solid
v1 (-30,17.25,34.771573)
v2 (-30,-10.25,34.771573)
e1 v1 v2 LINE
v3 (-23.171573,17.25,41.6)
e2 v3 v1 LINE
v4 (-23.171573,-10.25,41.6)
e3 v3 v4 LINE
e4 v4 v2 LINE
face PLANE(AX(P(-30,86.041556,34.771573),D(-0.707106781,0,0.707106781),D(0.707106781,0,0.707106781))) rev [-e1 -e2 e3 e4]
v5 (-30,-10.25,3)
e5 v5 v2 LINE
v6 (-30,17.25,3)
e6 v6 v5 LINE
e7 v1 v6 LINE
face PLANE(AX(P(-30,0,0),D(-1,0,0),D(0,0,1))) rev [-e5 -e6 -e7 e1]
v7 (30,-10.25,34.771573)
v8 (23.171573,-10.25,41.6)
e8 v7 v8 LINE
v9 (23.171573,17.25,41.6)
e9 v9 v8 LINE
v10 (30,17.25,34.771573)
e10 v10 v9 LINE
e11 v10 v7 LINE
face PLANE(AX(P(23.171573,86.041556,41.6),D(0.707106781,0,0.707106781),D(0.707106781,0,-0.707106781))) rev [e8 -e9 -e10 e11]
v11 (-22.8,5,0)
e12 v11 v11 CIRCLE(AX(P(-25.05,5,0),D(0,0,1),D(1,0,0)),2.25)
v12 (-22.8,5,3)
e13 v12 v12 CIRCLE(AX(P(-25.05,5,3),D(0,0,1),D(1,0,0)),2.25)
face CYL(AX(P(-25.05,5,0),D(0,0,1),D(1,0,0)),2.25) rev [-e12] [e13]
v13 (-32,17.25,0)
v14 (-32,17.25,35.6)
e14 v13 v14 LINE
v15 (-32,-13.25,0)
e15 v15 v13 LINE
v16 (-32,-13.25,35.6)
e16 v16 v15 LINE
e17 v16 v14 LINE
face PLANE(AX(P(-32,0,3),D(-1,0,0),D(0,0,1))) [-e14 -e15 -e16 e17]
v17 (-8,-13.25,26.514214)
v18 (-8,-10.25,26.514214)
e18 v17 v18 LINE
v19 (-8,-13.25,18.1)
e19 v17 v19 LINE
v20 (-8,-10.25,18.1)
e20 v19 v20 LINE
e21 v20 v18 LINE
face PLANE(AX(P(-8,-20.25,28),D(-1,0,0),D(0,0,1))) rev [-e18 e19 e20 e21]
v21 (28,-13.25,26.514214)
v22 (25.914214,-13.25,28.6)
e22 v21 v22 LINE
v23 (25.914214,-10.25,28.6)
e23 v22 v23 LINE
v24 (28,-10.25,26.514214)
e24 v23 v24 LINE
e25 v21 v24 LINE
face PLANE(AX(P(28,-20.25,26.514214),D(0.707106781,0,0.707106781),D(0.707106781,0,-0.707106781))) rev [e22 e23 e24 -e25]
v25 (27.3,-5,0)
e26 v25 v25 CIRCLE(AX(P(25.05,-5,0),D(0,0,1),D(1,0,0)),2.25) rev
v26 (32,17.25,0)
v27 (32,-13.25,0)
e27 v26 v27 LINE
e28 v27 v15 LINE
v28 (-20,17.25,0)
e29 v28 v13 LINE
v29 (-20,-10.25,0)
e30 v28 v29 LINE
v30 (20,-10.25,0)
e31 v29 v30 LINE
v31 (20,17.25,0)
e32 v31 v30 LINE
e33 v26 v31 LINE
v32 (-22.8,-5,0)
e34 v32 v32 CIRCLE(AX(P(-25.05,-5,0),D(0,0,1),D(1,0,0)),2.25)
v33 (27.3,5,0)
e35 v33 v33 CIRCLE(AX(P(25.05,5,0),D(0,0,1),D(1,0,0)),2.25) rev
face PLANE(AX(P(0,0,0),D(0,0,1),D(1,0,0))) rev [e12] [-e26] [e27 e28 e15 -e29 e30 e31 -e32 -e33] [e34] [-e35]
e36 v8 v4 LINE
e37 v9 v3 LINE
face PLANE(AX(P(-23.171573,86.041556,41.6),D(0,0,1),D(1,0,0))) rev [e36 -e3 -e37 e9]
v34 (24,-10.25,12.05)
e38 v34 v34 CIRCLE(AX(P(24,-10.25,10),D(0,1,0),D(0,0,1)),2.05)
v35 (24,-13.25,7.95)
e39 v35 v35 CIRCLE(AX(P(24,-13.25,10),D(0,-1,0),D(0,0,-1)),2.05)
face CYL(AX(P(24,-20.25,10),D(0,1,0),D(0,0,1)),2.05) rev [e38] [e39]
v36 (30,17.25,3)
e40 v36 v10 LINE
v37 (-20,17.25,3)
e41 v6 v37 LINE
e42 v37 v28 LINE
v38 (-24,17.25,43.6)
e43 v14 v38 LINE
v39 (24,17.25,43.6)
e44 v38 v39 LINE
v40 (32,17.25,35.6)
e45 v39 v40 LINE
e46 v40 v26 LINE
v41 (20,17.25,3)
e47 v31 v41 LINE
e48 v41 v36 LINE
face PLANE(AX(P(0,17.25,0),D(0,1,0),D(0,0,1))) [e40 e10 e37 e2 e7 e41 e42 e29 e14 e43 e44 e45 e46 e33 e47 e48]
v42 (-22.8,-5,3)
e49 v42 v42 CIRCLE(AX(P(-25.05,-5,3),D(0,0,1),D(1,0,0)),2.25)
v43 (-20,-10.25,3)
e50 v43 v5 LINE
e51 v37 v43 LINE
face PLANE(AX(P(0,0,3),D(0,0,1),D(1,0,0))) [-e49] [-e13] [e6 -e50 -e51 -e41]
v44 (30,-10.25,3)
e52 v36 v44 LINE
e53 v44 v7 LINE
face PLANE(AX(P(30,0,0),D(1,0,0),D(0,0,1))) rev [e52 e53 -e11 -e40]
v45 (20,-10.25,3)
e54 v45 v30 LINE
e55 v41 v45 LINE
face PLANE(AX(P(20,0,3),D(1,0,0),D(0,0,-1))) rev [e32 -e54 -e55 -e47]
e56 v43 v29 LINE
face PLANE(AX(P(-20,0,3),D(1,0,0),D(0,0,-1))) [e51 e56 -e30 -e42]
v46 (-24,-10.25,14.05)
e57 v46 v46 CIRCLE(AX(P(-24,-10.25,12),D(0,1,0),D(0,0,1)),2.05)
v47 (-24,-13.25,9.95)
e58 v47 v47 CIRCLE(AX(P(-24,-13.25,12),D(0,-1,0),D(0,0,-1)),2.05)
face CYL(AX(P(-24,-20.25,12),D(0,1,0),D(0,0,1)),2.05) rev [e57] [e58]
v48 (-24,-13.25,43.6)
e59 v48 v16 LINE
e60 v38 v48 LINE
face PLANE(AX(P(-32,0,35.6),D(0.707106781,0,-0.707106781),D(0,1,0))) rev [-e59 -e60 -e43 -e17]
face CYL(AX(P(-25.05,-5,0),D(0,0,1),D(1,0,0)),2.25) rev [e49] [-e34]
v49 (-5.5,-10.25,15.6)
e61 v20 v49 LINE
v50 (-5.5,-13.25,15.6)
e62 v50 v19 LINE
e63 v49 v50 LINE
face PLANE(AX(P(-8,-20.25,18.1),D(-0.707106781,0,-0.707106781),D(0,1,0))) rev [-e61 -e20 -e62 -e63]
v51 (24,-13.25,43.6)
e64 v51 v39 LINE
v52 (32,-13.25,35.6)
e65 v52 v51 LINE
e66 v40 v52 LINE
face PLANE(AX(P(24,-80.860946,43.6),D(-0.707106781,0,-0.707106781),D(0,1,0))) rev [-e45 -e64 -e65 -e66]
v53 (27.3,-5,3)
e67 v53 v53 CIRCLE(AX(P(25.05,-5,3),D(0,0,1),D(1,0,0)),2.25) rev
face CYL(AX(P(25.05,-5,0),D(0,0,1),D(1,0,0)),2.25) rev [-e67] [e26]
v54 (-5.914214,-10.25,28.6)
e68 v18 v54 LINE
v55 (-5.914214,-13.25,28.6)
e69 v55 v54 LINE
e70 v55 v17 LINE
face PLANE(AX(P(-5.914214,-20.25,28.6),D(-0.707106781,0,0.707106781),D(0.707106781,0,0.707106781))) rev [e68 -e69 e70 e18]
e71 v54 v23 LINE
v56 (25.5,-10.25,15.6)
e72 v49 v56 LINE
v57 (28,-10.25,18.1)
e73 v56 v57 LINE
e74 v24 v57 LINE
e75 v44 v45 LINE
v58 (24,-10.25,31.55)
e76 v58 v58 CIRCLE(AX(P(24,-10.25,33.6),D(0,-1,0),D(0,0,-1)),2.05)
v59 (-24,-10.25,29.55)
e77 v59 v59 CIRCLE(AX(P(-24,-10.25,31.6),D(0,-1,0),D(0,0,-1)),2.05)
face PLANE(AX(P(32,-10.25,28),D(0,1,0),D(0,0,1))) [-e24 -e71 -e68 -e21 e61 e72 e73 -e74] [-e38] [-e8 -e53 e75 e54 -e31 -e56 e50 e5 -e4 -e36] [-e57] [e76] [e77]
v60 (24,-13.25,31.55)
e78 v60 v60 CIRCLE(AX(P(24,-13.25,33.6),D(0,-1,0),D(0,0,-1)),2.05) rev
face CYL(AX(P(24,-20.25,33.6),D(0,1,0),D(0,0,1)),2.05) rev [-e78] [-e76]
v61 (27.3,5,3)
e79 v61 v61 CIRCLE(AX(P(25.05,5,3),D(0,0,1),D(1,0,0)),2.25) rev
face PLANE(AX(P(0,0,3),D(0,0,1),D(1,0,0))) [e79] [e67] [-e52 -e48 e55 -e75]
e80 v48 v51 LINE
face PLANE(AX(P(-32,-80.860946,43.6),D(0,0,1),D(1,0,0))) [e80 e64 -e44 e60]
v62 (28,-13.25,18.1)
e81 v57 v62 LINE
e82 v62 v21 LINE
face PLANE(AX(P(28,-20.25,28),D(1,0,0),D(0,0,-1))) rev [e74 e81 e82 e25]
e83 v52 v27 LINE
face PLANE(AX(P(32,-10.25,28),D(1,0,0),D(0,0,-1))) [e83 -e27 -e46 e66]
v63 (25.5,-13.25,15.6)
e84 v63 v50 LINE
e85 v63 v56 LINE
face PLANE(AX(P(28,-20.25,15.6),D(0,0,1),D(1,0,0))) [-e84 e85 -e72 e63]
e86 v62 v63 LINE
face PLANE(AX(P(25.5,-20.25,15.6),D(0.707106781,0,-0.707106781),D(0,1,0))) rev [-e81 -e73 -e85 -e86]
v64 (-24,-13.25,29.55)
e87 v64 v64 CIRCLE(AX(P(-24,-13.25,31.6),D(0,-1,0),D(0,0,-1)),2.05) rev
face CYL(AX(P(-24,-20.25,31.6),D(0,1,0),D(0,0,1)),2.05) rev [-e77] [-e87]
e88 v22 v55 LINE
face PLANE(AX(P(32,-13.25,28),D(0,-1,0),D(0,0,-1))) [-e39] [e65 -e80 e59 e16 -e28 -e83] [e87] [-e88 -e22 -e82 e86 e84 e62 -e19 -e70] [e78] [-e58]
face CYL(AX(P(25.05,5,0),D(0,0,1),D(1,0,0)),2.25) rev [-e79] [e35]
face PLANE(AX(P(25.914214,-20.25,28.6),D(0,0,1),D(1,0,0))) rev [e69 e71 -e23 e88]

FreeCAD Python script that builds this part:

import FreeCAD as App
import Part
import Sketcher
from FreeCAD import Vector


def edges_at(feature, points):
    """Names of the edges that pass closest to the given points."""
    edges = feature.Shape.Edges
    near = lambda p: min(range(len(edges)), key=lambda i: edges[i].distToShape(Part.Vertex(*p))[0])
    return sorted({f"Edge{near(p) + 1}" for p in points})

doc = App.newDocument("Part")
body = doc.addObject("PartDesign::Body", "Body")

# Sketch on XY plane
sketch1 = body.newObject("Sketcher::SketchObject", "Sketch")
sketch1.AttachmentSupport = (doc.getObject("XY_Plane"), [""])
sketch1.MapMode = "FlatFace"
sketch1.addGeometry([
    Part.LineSegment(Vector(20, 10, 0), Vector(20, -10, 0)),
    Part.LineSegment(Vector(20, -10, 0), Vector(32, -10, 0)),
    Part.LineSegment(Vector(32, -10, 0), Vector(32, 10, 0)),
    Part.LineSegment(Vector(32, 10, 0), Vector(20, 10, 0)),
], False)
sketch1.addConstraint([
    Sketcher.Constraint("Coincident", 0, 2, 1, 1),
    Sketcher.Constraint("Coincident", 1, 2, 2, 1),
    Sketcher.Constraint("Coincident", 2, 2, 3, 1),
    Sketcher.Constraint("Coincident", 3, 2, 0, 1),
    Sketcher.Constraint("Vertical", 0),
    Sketcher.Constraint("Horizontal", 1),
    Sketcher.Constraint("Vertical", 2),
    Sketcher.Constraint("Horizontal", 3),
    Sketcher.Constraint("DistanceX", 1, 1, 1, 2, 12.0),
    Sketcher.Constraint("DistanceY", 0, 2, 0, 1, 20.5),
    Sketcher.Constraint("DistanceX", -1, 1, 0, 2, 20.0),
    Sketcher.Constraint("DistanceY", 0, 2, -1, 1, 10.25),
])
pad1 = body.newObject("PartDesign::Pad", "Pad")
pad1.Profile = sketch1
pad1.Length = 3
body2 = doc.addObject("PartDesign::Body", "Body001")

# Sketch on XY plane
sketch2 = body2.newObject("Sketcher::SketchObject", "Sketch001")
sketch2.AttachmentSupport = (doc.getObject("XY_Plane001"), [""])
sketch2.MapMode = "FlatFace"
sketch2.addGeometry([
    Part.LineSegment(Vector(-32, 10, 0), Vector(-32, -10, 0)),
    Part.LineSegment(Vector(-32, -10, 0), Vector(-20, -10, 0)),
    Part.LineSegment(Vector(-20, -10, 0), Vector(-20, 10, 0)),
    Part.LineSegment(Vector(-20, 10, 0), Vector(-32, 10, 0)),
], False)
sketch2.addConstraint([
    Sketcher.Constraint("Coincident", 0, 2, 1, 1),
    Sketcher.Constraint("Coincident", 1, 2, 2, 1),
    Sketcher.Constraint("Coincident", 2, 2, 3, 1),
    Sketcher.Constraint("Coincident", 3, 2, 0, 1),
    Sketcher.Constraint("Vertical", 0),
    Sketcher.Constraint("Horizontal", 1),
    Sketcher.Constraint("Vertical", 2),
    Sketcher.Constraint("Horizontal", 3),
    Sketcher.Constraint("DistanceX", 1, 1, 1, 2, 12.0),
    Sketcher.Constraint("DistanceY", 0, 2, 0, 1, 20.5),
    Sketcher.Constraint("DistanceX", 0, 2, -1, 1, 32.0),
    Sketcher.Constraint("DistanceY", 0, 2, -1, 1, 10.25),
])
pad2 = body2.newObject("PartDesign::Pad", "Pad001")
pad2.Profile = sketch2
pad2.Length = 3
body3 = doc.addObject("PartDesign::Body", "Body002")
body3.AllowCompound = True

# Sketch on XY plane
sketch3 = body3.newObject("Sketcher::SketchObject", "Sketch002")
sketch3.AttachmentSupport = (doc.getObject("XY_Plane002"), [""])
sketch3.MapMode = "FlatFace"
sketch3.AttachmentOffset = App.Placement(Vector(0, 0, 3), App.Rotation())
sketch3.addGeometry([
    Part.Circle(Vector(-25.1, 5, 0), Vector(0, 0, 1), 2.2),
    Part.Circle(Vector(-25.1, -5, 0), Vector(0, 0, 1), 2.2),
    Part.Circle(Vector(25.1, -5, 0), Vector(0, 0, 1), 2.2),
    Part.Circle(Vector(25.1, 5, 0), Vector(0, 0, 1), 2.2),
], False)
sketch3.addConstraint([
    Sketcher.Constraint("Equal", 0, 1),
    Sketcher.Constraint("Equal", 1, 2),
    Sketcher.Constraint("Equal", 2, 3),
    Sketcher.Constraint("Symmetric", 0, 3, 2, 3, -1, 1),
    Sketcher.Constraint("Symmetric", 1, 3, 3, 3, -1, 1),
    Sketcher.Constraint("Symmetric", 1, 3, 2, 3, -2),
    Sketcher.Constraint("Diameter", 0, 4.5),
    Sketcher.Constraint("DistanceY", -1, 1, 0, 3, 5.0),
    Sketcher.Constraint("DistanceX", 1, 3, 2, 3, 50.1),
])
pad3 = body3.newObject("PartDesign::Pad", "Pad002")
pad3.Profile = sketch3
pad3.Type = "TwoLengths"
pad3.Length = 34.735182
pad3.Length2 = 3
pad3.Reversed = True
doc.recompute()

body4 = doc.addObject("PartDesign::Body", "Body003")
body4.BaseFeature = body3
boolean = body.newObject("PartDesign::Boolean", "Boolean")
boolean.Type = "Cut"
boolean.addObjects([body4])
doc.recompute()

boolean2 = body2.newObject("PartDesign::Boolean", "Boolean001")
boolean2.Type = "Cut"
boolean2.addObjects([body3])
body.AllowCompound = True
doc.recompute()

boolean3 = body.newObject("PartDesign::Boolean", "Boolean002")
boolean3.Type = "Fuse"
boolean3.addObjects([body2])

# Sketch on XY plane
sketch4 = body.newObject("Sketcher::SketchObject", "Sketch003")
sketch4.AttachmentSupport = (doc.getObject("XY_Plane"), [""])
sketch4.MapMode = "FlatFace"
sketch4.addGeometry([
    Part.LineSegment(Vector(32, -10.2, 0), Vector(32, -13.2, 0)),
    Part.LineSegment(Vector(32, -13.2, 0), Vector(-32, -13.2, 0)),
    Part.LineSegment(Vector(-32, -13.2, 0), Vector(-32, -10.2, 0)),
    Part.LineSegment(Vector(-32, -10.2, 0), Vector(32, -10.2, 0)),
], False)
sketch4.addConstraint([
    Sketcher.Constraint("Coincident", 0, 2, 1, 1),
    Sketcher.Constraint("Coincident", 1, 2, 2, 1),
    Sketcher.Constraint("Coincident", 2, 2, 3, 1),
    Sketcher.Constraint("Coincident", 3, 2, 0, 1),
    Sketcher.Constraint("Vertical", 0),
    Sketcher.Constraint("Horizontal", 1),
    Sketcher.Constraint("Vertical", 2),
    Sketcher.Constraint("Horizontal", 3),
    Sketcher.Constraint("DistanceX", 1, 2, 1, 1, 64.0),
    Sketcher.Constraint("DistanceY", 0, 2, 0, 1, 3.0),
    Sketcher.Constraint("DistanceX", -1, 1, 0, 2, 32.0),
    Sketcher.Constraint("DistanceY", 0, 2, -1, 1, 13.25),
])
pad4 = body.newObject("PartDesign::Pad", "Pad003")
pad4.Profile = sketch4
pad4.Length = 28

# Sketch on YZ plane
sketch5 = body.newObject("Sketcher::SketchObject", "Sketch004")
sketch5.AttachmentSupport = (doc.getObject("YZ_Plane"), [""])
sketch5.MapMode = "FlatFace"
sketch5.AttachmentOffset = App.Placement(Vector(0, 0, -32), App.Rotation())
sketch5.addGeometry([
    Part.LineSegment(Vector(-10, 28, 0), Vector(10, 3, 0)),
    Part.LineSegment(Vector(10, 3, 0), Vector(-10, 3, 0)),
    Part.LineSegment(Vector(-10, 3, 0), Vector(-10, 28, 0)),
], False)
sketch5.addConstraint([
    Sketcher.Constraint("Coincident", 0, 2, 1, 1),
    Sketcher.Constraint("Coincident", 1, 2, 2, 1),
    Sketcher.Constraint("Coincident", 2, 2, 0, 1),
    Sketcher.Constraint("Horizontal", 1),
    Sketcher.Constraint("Vertical", 2),
    Sketcher.Constraint("DistanceY", 2, 1, 2, 2, 25.0),
    Sketcher.Constraint("DistanceX", 1, 2, 1, 1, 20.5),
    Sketcher.Constraint("DistanceY", -1, 1, 0, 2, 3.0),
    Sketcher.Constraint("DistanceX", -1, 1, 0, 2, 10.25),
])
pad5 = body.newObject("PartDesign::Pad", "Pad004")
pad5.Profile = sketch5
pad5.Length = 2
doc.recompute()

mirrored = body.newObject("PartDesign::Mirrored", "Mirrored")
mirrored.Originals = [pad5]
mirrored.MirrorPlane = (doc.getObject("YZ_Plane"), [""])
body.Tip = mirrored

# Sketch on XZ plane
sketch6 = body.newObject("Sketcher::SketchObject", "Sketch005")
sketch6.AttachmentSupport = (doc.getObject("XZ_Plane"), [""])
sketch6.MapMode = "FlatFace"
sketch6.AttachmentOffset = App.Placement(Vector(0, 0, 10.25), App.Rotation())
sketch6.addGeometry([
    Part.LineSegment(Vector(-8, 16, 0), Vector(-8, 28, 0)),
    Part.LineSegment(Vector(-8, 28, 0), Vector(28, 28, 0)),
    Part.LineSegment(Vector(28, 28, 0), Vector(28, 16, 0)),
    Part.LineSegment(Vector(28, 16, 0), Vector(-8, 16, 0)),
], False)
sketch6.addConstraint([
    Sketcher.Constraint("Coincident", 0, 2, 1, 1),
    Sketcher.Constraint("Coincident", 1, 2, 2, 1),
    Sketcher.Constraint("Coincident", 2, 2, 3, 1),
    Sketcher.Constraint("Coincident", 3, 2, 0, 1),
    Sketcher.Constraint("Vertical", 0),
    Sketcher.Constraint("Horizontal", 1),
    Sketcher.Constraint("Vertical", 2),
    Sketcher.Constraint("Horizontal", 3),
    Sketcher.Constraint("DistanceX", 1, 1, 1, 2, 36.0),
    Sketcher.Constraint("DistanceY", 0, 1, 0, 2, 12.0),
    Sketcher.Constraint("DistanceX", 0, 2, -1, 1, 8.0),
    Sketcher.Constraint("DistanceY", -1, 1, 0, 2, 28.0),
])
pocket1 = body.newObject("PartDesign::Pocket", "Pocket")
pocket1.Profile = sketch6
pocket1.Length = 10
pocket1.Reversed = True

# Sketch on XZ plane
sketch7 = body.newObject("Sketcher::SketchObject", "Sketch006")
sketch7.AttachmentSupport = (doc.getObject("XZ_Plane"), [""])
sketch7.MapMode = "FlatFace"
sketch7.AttachmentOffset = App.Placement(Vector(0, 0, 10.25), App.Rotation())
sketch7.addGeometry([
    Part.Circle(Vector(-24, 12, 0), Vector(0, 0, 1), 2),
    Part.Circle(Vector(24, 10, 0), Vector(0, 0, 1), 2),
], False)
sketch7.addConstraint([
    Sketcher.Constraint("Equal", 0, 1),
    Sketcher.Constraint("Diameter", 0, 4.1),
    Sketcher.Constraint("DistanceX", 0, 3, -1, 1, 24.0),
    Sketcher.Constraint("DistanceY", -1, 1, 0, 3, 12.0),
    Sketcher.Constraint("DistanceX", -1, 1, 1, 3, 24.0),
    Sketcher.Constraint("DistanceY", -1, 1, 1, 3, 10.0),
])
pocket2 = body.newObject("PartDesign::Pocket", "Pocket001")
pocket2.Profile = sketch7
pocket2.Length = 10
pocket2.Reversed = True

# Sketch on XZ plane
sketch8 = body.newObject("Sketcher::SketchObject", "Sketch007")
sketch8.AttachmentSupport = (doc.getObject("XZ_Plane"), [""])
sketch8.MapMode = "FlatFace"
sketch8.AttachmentOffset = App.Placement(Vector(0, 0, 10.25), App.Rotation())
sketch8.addGeometry([
    Part.LineSegment(Vector(-32, 22, 0), Vector(-32, 28, 0)),
    Part.LineSegment(Vector(-32, 28, 0), Vector(32, 28, 0)),
    Part.LineSegment(Vector(32, 28, 0), Vector(32, 22, 0)),
    Part.LineSegment(Vector(32, 22, 0), Vector(-32, 22, 0)),
], False)
sketch8.addConstraint([
    Sketcher.Constraint("Coincident", 0, 2, 1, 1),
    Sketcher.Constraint("Coincident", 1, 2, 2, 1),
    Sketcher.Constraint("Coincident", 2, 2, 3, 1),
    Sketcher.Constraint("Coincident", 3, 2, 0, 1),
    Sketcher.Constraint("Vertical", 0),
    Sketcher.Constraint("Horizontal", 1),
    Sketcher.Constraint("Vertical", 2),
    Sketcher.Constraint("Horizontal", 3),
    Sketcher.Constraint("DistanceX", 1, 1, 1, 2, 64.0),
    Sketcher.Constraint("DistanceY", 0, 1, 0, 2, 6.2),
    Sketcher.Constraint("DistanceX", 0, 2, -1, 1, 32.0),
    Sketcher.Constraint("DistanceY", -1, 1, 0, 2, 28.0),
])
pocket3 = body.newObject("PartDesign::Pocket", "Pocket002")
pocket3.Profile = sketch8
pocket3.Type = "ThroughAll"
pocket3.Midplane = True

# Sketch on XZ plane
sketch9 = body.newObject("Sketcher::SketchObject", "Sketch008")
sketch9.AttachmentSupport = (doc.getObject("XZ_Plane"), [""])
sketch9.MapMode = "FlatFace"
sketch9.AttachmentOffset = App.Placement(Vector(0, 0, 10.25), App.Rotation())
sketch9.addGeometry([
    Part.LineSegment(Vector(-32, 22, 0), Vector(-32, 44, 0)),
    Part.LineSegment(Vector(-32, 44, 0), Vector(32, 44, 0)),
    Part.LineSegment(Vector(32, 44, 0), Vector(32, 22, 0)),
    Part.LineSegment(Vector(32, 22, 0), Vector(-32, 22, 0)),
], False)
sketch9.addConstraint([
    Sketcher.Constraint("Coincident", 0, 2, 1, 1),
    Sketcher.Constraint("Coincident", 1, 2, 2, 1),
    Sketcher.Constraint("Coincident", 2, 2, 3, 1),
    Sketcher.Constraint("Coincident", 3, 2, 0, 1),
    Sketcher.Constraint("Vertical", 0),
    Sketcher.Constraint("Horizontal", 1),
    Sketcher.Constraint("Vertical", 2),
    Sketcher.Constraint("Horizontal", 3),
    Sketcher.Constraint("DistanceX", 1, 1, 1, 2, 64.0),
    Sketcher.Constraint("DistanceY", 0, 1, 0, 2, 21.8),
    Sketcher.Constraint("DistanceX", 0, 2, -1, 1, 32.0),
    Sketcher.Constraint("DistanceY", -1, 1, 0, 2, 43.6),
])
pad6 = body.newObject("PartDesign::Pad", "Pad005")
pad6.Profile = sketch9
pad6.Length = 3
doc.recompute()

datumplane = body.newObject("PartDesign::Plane", "DatumPlane")
datumplane.AttachmentSupport = (doc.getObject("XY_Plane"), [""])
datumplane.MapMode = "FlatFace"
datumplane.AttachmentOffset = App.Placement(Vector(0, 0, 21.8), App.Rotation())
mirrored2 = body.newObject("PartDesign::Mirrored", "Mirrored001")
mirrored2.Originals = [pocket1, pocket2]
mirrored2.MirrorPlane = (datumplane, [""])
body.Tip = mirrored2
doc.recompute()

chamfer = body.newObject("PartDesign::Chamfer", "Chamfer")
chamfer.Base = (mirrored2, edges_at(mirrored2, [(31, -10.25, 21.8), (-31, -10.25, 21.8)]))
chamfer.Size = 5
doc.recompute()

chamfer2 = body.newObject("PartDesign::Chamfer", "Chamfer001")
chamfer2.Base = (chamfer, edges_at(chamfer, [
    (28, -11.75, 15.6),
    (28, -11.75, 27.6),
    (-8, -11.75, 27.6),
    (-8, -11.75, 15.6),
]))
chamfer2.Size = 2.5
doc.recompute()

chamfer3 = body.newObject("PartDesign::Chamfer", "Chamfer002")
chamfer3.Base = (chamfer2, edges_at(chamfer2, [(32, -11.75, 43.6), (-32, -11.75, 43.6)]))
chamfer3.Size = 8

# Sketch on XZ plane
sketch10 = body.newObject("Sketcher::SketchObject", "Sketch009")
sketch10.AttachmentSupport = (doc.getObject("XZ_Plane"), [""])
sketch10.MapMode = "FlatFace"
sketch10.AttachmentOffset = App.Placement(Vector(0, 0, 10.25), App.Rotation())
sketch10.addGeometry([
    Part.LineSegment(Vector(-8, 25.1, 0), Vector(-8, 26.5, 0)),  # 0
    Part.LineSegment(Vector(-8, 26.5, 0), Vector(-5.9, 28.6, 0)),  # 1
    Part.LineSegment(Vector(-5.9, 28.6, 0), Vector(25.9, 28.6, 0)),  # 2
    Part.LineSegment(Vector(25.9, 28.6, 0), Vector(28, 26.5, 0)),  # 3
    Part.LineSegment(Vector(28, 26.5, 0), Vector(28, 25.1, 0)),  # 4
    Part.LineSegment(Vector(28, 25.1, 0), Vector(-8, 25.1, 0)),  # 5
], False)
sketch10.addConstraint([
    Sketcher.Constraint("Coincident", 0, 2, 1, 1),
    Sketcher.Constraint("Coincident", 1, 2, 2, 1),
    Sketcher.Constraint("Coincident", 2, 2, 3, 1),
    Sketcher.Constraint("Coincident", 3, 2, 4, 1),
    Sketcher.Constraint("Coincident", 4, 2, 5, 1),
    Sketcher.Constraint("Coincident", 5, 2, 0, 1),
    Sketcher.Constraint("Vertical", 0),
    Sketcher.Constraint("Horizontal", 2),
    Sketcher.Constraint("Vertical", 4),
    Sketcher.Constraint("Horizontal", 5),
    Sketcher.Constraint("Perpendicular", 1, 3),
    Sketcher.Constraint("Horizontal", 0, 2, 3, 2),
    Sketcher.Constraint("Equal", 1, 3),
    Sketcher.Constraint("DistanceX", 5, 2, 5, 1, 36.0),
    Sketcher.Constraint("DistanceX", 0, 2, -1, 1, 8.0),
    Sketcher.Constraint("DistanceY", -1, 1, 1, 2, 28.6),
    Sketcher.Constraint("DistanceY", -1, 1, 4, 2, 25.1),
    Sketcher.Constraint("DistanceX", 2, 1, 2, 2, 31.828427),
])
pocket4 = body.newObject("PartDesign::Pocket", "Pocket003")
pocket4.Profile = sketch10
pocket4.Length = 10
pocket4.Reversed = True

# Sketch on XZ plane
sketch11 = body.newObject("Sketcher::SketchObject", "Sketch010")
sketch11.AttachmentSupport = (doc.getObject("XZ_Plane"), [""])
sketch11.MapMode = "FlatFace"
sketch11.AttachmentOffset = App.Placement(Vector(0, 0, 10.25), App.Rotation())
sketch11.addGeometry([
    Part.LineSegment(Vector(-32, 3, 0), Vector(-32, 35.6, 0)),  # 0
    Part.LineSegment(Vector(-32, 35.6, 0), Vector(-24, 43.6, 0)),  # 1
    Part.LineSegment(Vector(-24, 43.6, 0), Vector(24, 43.6, 0)),  # 2
    Part.LineSegment(Vector(24, 43.6, 0), Vector(32, 35.6, 0)),  # 3
    Part.LineSegment(Vector(32, 35.6, 0), Vector(32, 3, 0)),  # 4
    Part.LineSegment(Vector(32, 3, 0), Vector(30, 3, 0)),  # 5
    Part.LineSegment(Vector(30, 3, 0), Vector(30, 34.8, 0)),  # 6
    Part.LineSegment(Vector(30, 34.8, 0), Vector(23.2, 41.6, 0)),  # 7
    Part.LineSegment(Vector(23.2, 41.6, 0), Vector(-23.2, 41.6, 0)),  # 8
    Part.LineSegment(Vector(-23.2, 41.6, 0), Vector(-30, 34.8, 0)),  # 9
    Part.LineSegment(Vector(-30, 34.8, 0), Vector(-30, 3, 0)),  # 10
    Part.LineSegment(Vector(-30, 3, 0), Vector(-32, 3, 0)),  # 11
], False)
sketch11.addConstraint([
    Sketcher.Constraint("Coincident", 0, 2, 1, 1),
    Sketcher.Constraint("Coincident", 1, 2, 2, 1),
    Sketcher.Constraint("Coincident", 2, 2, 3, 1),
    Sketcher.Constraint("Coincident", 3, 2, 4, 1),
    Sketcher.Constraint("Coincident", 4, 2, 5, 1),
    Sketcher.Constraint("Coincident", 5, 2, 6, 1),
    Sketcher.Constraint("Coincident", 6, 2, 7, 1),
    Sketcher.Constraint("Coincident", 7, 2, 8, 1),
    Sketcher.Constraint("Coincident", 8, 2, 9, 1),
    Sketcher.Constraint("Coincident", 9, 2, 10, 1),
    Sketcher.Constraint("Coincident", 10, 2, 11, 1),
    Sketcher.Constraint("Coincident", 11, 2, 0, 1),
    Sketcher.Constraint("Vertical", 0),
    Sketcher.Constraint("Horizontal", 2),
    Sketcher.Constraint("Vertical", 4),
    Sketcher.Constraint("Horizontal", 5),
    Sketcher.Constraint("Vertical", 6),
    Sketcher.Constraint("Horizontal", 8),
    Sketcher.Constraint("Vertical", 10),
    Sketcher.Constraint("Horizontal", 11),
    Sketcher.Constraint("Symmetric", 0, 2, 3, 2, -2),
    Sketcher.Constraint("Symmetric", 6, 2, 9, 2, -2),
    Sketcher.Constraint("Perpendicular", 1, 3),
    Sketcher.Constraint("Parallel", 3, 7),
    Sketcher.Constraint("Perpendicular", 7, 9),
    Sketcher.Constraint("Horizontal", 5, 2, 10, 2),
    Sketcher.Constraint("Equal", 1, 3),
    Sketcher.Constraint("DistanceX", 2, 1, 2, 2, 48.0),
    Sketcher.Constraint("DistanceX", 5, 2, 5, 1, 2.0),
    Sketcher.Constraint("DistanceY", 0, 1, 0, 2, 32.6),
    Sketcher.Constraint("DistanceX", 0, 2, -1, 1, 32.0),
    Sketcher.Constraint("DistanceY", -1, 1, 4, 2, 3.0),
    Sketcher.Constraint("DistanceY", 7, 2, 2, 2, 2.0),
    Sketcher.Constraint("DistanceX", 8, 2, 8, 1, 46.343146),
])
pad7 = body.newObject("PartDesign::Pad", "Pad006")
pad7.Profile = sketch11
pad7.Length = 20.5
pad7.Reversed = True

# Sketch on XZ plane
sketch12 = body.newObject("Sketcher::SketchObject", "Sketch011")
sketch12.AttachmentSupport = (doc.getObject("XZ_Plane"), [""])
sketch12.MapMode = "FlatFace"
sketch12.AttachmentOffset = App.Placement(Vector(0, 0, -10.25), App.Rotation())
sketch12.addGeometry([
    Part.LineSegment(Vector(-20, 0, 0), Vector(-32, 0, 0)),  # 0
    Part.LineSegment(Vector(-32, 0, 0), Vector(-32, 35.6, 0)),  # 1
    Part.LineSegment(Vector(-32, 35.6, 0), Vector(-24, 43.6, 0)),  # 2
    Part.LineSegment(Vector(-24, 43.6, 0), Vector(24, 43.6, 0)),  # 3
    Part.LineSegment(Vector(24, 43.6, 0), Vector(32, 35.6, 0)),  # 4
    Part.LineSegment(Vector(32, 35.6, 0), Vector(32, 0, 0)),  # 5
    Part.LineSegment(Vector(32, 0, 0), Vector(20, 0, 0)),  # 6
    Part.LineSegment(Vector(20, 0, 0), Vector(20, 3, 0)),  # 7
    Part.LineSegment(Vector(20, 3, 0), Vector(30, 3, 0)),  # 8
    Part.LineSegment(Vector(30, 3, 0), Vector(30, 34.8, 0)),  # 9
    Part.LineSegment(Vector(30, 34.8, 0), Vector(23.2, 41.6, 0)),  # 10
    Part.LineSegment(Vector(23.2, 41.6, 0), Vector(-23.2, 41.6, 0)),  # 11
    Part.LineSegment(Vector(-23.2, 41.6, 0), Vector(-30, 34.8, 0)),  # 12
    Part.LineSegment(Vector(-30, 34.8, 0), Vector(-30, 3, 0)),  # 13
    Part.LineSegment(Vector(-30, 3, 0), Vector(-20, 3, 0)),  # 14
    Part.LineSegment(Vector(-20, 3, 0), Vector(-20, 0, 0)),  # 15
], False)
sketch12.addConstraint([
    Sketcher.Constraint("Coincident", 0, 2, 1, 1),
    Sketcher.Constraint("Coincident", 1, 2, 2, 1),
    Sketcher.Constraint("Coincident", 2, 2, 3, 1),
    Sketcher.Constraint("Coincident", 3, 2, 4, 1),
    Sketcher.Constraint("Coincident", 4, 2, 5, 1),
    Sketcher.Constraint("Coincident", 5, 2, 6, 1),
    Sketcher.Constraint("Coincident", 6, 2, 7, 1),
    Sketcher.Constraint("Coincident", 7, 2, 8, 1),
    Sketcher.Constraint("Coincident", 8, 2, 9, 1),
    Sketcher.Constraint("Coincident", 9, 2, 10, 1),
    Sketcher.Constraint("Coincident", 10, 2, 11, 1),
    Sketcher.Constraint("Coincident", 11, 2, 12, 1),
    Sketcher.Constraint("Coincident", 12, 2, 13, 1),
    Sketcher.Constraint("Coincident", 13, 2, 14, 1),
    Sketcher.Constraint("Coincident", 14, 2, 15, 1),
    Sketcher.Constraint("Coincident", 15, 2, 0, 1),
    Sketcher.Constraint("Horizontal", 0),
    Sketcher.Constraint("Vertical", 1),
    Sketcher.Constraint("Horizontal", 3),
    Sketcher.Constraint("Vertical", 5),
    Sketcher.Constraint("Horizontal", 6),
    Sketcher.Constraint("Vertical", 7),
    Sketcher.Constraint("Horizontal", 8),
    Sketcher.Constraint("Vertical", 9),
    Sketcher.Constraint("Horizontal", 11),
    Sketcher.Constraint("Vertical", 13),
    Sketcher.Constraint("Horizontal", 14),
    Sketcher.Constraint("Vertical", 15),
    Sketcher.Constraint("Symmetric", 0, 2, 5, 2, -1, 1),
    Sketcher.Constraint("Symmetric", 9, 2, 12, 2, -2),
    Sketcher.Constraint("Symmetric", 7, 2, 14, 2, -2),
    Sketcher.Constraint("PointOnObject", 0, 2, -1),
    Sketcher.Constraint("Perpendicular", 2, 4),
    Sketcher.Constraint("Parallel", 4, 10),
    Sketcher.Constraint("Perpendicular", 10, 12),
    Sketcher.Constraint("Horizontal", 1, 2, 4, 2),
    Sketcher.Constraint("Equal", 2, 4),
    Sketcher.Constraint("DistanceX", 0, 2, 0, 1, 12.0),
    Sketcher.Constraint("DistanceX", 3, 1, 3, 2, 48.0),
    Sketcher.Constraint("DistanceX", 8, 1, 8, 2, 10.0),
    Sketcher.Constraint("DistanceY", 7, 1, 7, 2, 3.0),
    Sketcher.Constraint("DistanceY", 1, 1, 1, 2, 35.6),
    Sketcher.Constraint("DistanceX", 0, 2, -1, 1, 32.0),
    Sketcher.Constraint("DistanceY", 10, 2, 3, 2, 2.0),
    Sketcher.Constraint("DistanceX", 11, 2, 11, 1, 46.343146),
])
pad8 = body.newObject("PartDesign::Pad", "Pad007")
pad8.Profile = sketch12
pad8.Length = 7
pad8.Reversed = True

doc.recompute()
